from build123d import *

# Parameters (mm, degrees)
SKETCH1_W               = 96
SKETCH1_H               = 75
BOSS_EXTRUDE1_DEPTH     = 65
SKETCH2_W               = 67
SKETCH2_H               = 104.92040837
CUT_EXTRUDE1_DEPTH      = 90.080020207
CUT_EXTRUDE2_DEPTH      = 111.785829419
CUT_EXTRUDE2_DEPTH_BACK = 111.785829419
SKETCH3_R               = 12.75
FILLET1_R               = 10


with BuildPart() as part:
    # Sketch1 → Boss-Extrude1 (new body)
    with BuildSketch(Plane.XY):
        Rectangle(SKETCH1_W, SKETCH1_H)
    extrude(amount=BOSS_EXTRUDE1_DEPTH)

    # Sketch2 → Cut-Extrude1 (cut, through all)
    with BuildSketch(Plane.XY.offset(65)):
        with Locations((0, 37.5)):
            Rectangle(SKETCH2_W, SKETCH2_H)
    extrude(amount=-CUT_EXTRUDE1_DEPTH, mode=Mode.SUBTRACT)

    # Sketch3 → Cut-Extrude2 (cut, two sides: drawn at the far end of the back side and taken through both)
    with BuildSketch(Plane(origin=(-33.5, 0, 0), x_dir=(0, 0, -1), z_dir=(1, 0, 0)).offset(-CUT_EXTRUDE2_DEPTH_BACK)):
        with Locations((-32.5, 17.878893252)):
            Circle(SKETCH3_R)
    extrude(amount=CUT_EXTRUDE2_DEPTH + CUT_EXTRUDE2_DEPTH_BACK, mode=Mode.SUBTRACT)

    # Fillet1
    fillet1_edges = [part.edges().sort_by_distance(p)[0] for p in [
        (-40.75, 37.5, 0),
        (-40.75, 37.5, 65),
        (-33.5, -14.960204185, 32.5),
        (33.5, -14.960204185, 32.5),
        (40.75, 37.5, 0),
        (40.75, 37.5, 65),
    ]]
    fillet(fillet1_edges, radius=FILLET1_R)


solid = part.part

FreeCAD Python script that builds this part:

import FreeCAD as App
import Part
import Sketcher
from FreeCAD import Vector


def edges_at(feature, points):
    """Names of the edges that pass closest to the given points."""
    edges = feature.Shape.Edges
    near = lambda p: min(range(len(edges)), key=lambda i: edges[i].distToShape(Part.Vertex(*p))[0])
    return sorted({f"Edge{near(p) + 1}" for p in points})


def add_polygon(sketch, points):
    """Adds a closed chain of lines whose ends are joined by coincident constraints."""
    first, n = sketch.GeometryCount, len(points)
    for a, b in zip(points, points[1:] + points[:1]):
        sketch.addGeometry(Part.LineSegment(App.Vector(*a, 0), App.Vector(*b, 0)), False)
    for i in range(n):
        sketch.addConstraint(Sketcher.Constraint("Coincident", first + i, 2, first + (i + 1) % n, 1))

doc = App.newDocument("Part")
body = doc.addObject("PartDesign::Body", "Body")

# Sketch on XY plane
sketch1 = body.newObject("Sketcher::SketchObject", "Sketch")
sketch1.AttachmentSupport = (doc.getObject("XY_Plane"), [""])
sketch1.MapMode = "FlatFace"
add_polygon(sketch1, [(-48, 38), (-48, -38), (48, -38), (48, 38)])  # lines 0-3
sketch1.addConstraint([
    Sketcher.Constraint("Vertical", 0),
    Sketcher.Constraint("Horizontal", 1),
    Sketcher.Constraint("Vertical", 2),
    Sketcher.Constraint("Horizontal", 3),
    Sketcher.Constraint("Symmetric", 0, 2, 2, 2, -1, 1),
    Sketcher.Constraint("DistanceX", 1, 1, 1, 2, 96.0),
    Sketcher.Constraint("DistanceY", 0, 2, 0, 1, 75.0),
])
pad1 = body.newObject("PartDesign::Pad", "Pad")
pad1.Profile = sketch1
pad1.Length = 65

# Sketch on XY plane
sketch2 = body.newObject("Sketcher::SketchObject", "Sketch001")
sketch2.AttachmentSupport = (doc.getObject("XY_Plane"), [""])
sketch2.MapMode = "FlatFace"
sketch2.AttachmentOffset = App.Placement(Vector(0, 0, 65), App.Rotation())
add_polygon(sketch2, [(-34, 90), (-34, -15), (34, -15), (34, 90)])  # lines 0-3
sketch2.addConstraint([
    Sketcher.Constraint("Vertical", 0),
    Sketcher.Constraint("Horizontal", 1),
    Sketcher.Constraint("Vertical", 2),
    Sketcher.Constraint("Horizontal", 3),
    Sketcher.Constraint("DistanceX", 1, 1, 1, 2, 67.0),
    Sketcher.Constraint("DistanceX", 0, 2, -1, 1, 33.5),
    Sketcher.Constraint("DistanceY", 0, 2, 0, 1, 104.920408),
    Sketcher.Constraint("DistanceY", 0, 2, -1, 1, 14.960204),
])
pocket1 = body.newObject("PartDesign::Pocket", "Pocket")
pocket1.Profile = sketch2
pocket1.Type = "ThroughAll"

# Sketch on YZ plane
sketch3 = body.newObject("Sketcher::SketchObject", "Sketch002")
sketch3.AttachmentSupport = (doc.getObject("YZ_Plane"), [""])
sketch3.MapMode = "FlatFace"
sketch3.AttachmentOffset = App.Placement(Vector(0, 0, -33.5), App.Rotation())
sketch3.addGeometry(Part.Circle(Vector(18, 32, 0), Vector(0, 0, 1), 13), False)
sketch3.addConstraint([
    Sketcher.Constraint("Diameter", 0, 25.5),
    Sketcher.Constraint("DistanceY", -1, 1, 0, 3, 32.5),
    Sketcher.Constraint("DistanceX", -1, 1, 0, 3, 17.878893),
])
pocket2 = body.newObject("PartDesign::Pocket", "Pocket001")
pocket2.Profile = sketch3
pocket2.Type = "ThroughAll"
pocket2.Midplane = True
doc.recompute()

fillet = body.newObject("PartDesign::Fillet", "Fillet")
fillet.Base = (pocket2, edges_at(pocket2, [
    (-40.75, 37.5, 0),
    (-40.75, 37.5, 65),
    (-33.5, -14.96, 32.5),
    (33.5, -14.96, 32.5),
    (40.75, 37.5, 0),
    (40.75, 37.5, 65),
]))
fillet.Radius = 10

doc.recompute()
